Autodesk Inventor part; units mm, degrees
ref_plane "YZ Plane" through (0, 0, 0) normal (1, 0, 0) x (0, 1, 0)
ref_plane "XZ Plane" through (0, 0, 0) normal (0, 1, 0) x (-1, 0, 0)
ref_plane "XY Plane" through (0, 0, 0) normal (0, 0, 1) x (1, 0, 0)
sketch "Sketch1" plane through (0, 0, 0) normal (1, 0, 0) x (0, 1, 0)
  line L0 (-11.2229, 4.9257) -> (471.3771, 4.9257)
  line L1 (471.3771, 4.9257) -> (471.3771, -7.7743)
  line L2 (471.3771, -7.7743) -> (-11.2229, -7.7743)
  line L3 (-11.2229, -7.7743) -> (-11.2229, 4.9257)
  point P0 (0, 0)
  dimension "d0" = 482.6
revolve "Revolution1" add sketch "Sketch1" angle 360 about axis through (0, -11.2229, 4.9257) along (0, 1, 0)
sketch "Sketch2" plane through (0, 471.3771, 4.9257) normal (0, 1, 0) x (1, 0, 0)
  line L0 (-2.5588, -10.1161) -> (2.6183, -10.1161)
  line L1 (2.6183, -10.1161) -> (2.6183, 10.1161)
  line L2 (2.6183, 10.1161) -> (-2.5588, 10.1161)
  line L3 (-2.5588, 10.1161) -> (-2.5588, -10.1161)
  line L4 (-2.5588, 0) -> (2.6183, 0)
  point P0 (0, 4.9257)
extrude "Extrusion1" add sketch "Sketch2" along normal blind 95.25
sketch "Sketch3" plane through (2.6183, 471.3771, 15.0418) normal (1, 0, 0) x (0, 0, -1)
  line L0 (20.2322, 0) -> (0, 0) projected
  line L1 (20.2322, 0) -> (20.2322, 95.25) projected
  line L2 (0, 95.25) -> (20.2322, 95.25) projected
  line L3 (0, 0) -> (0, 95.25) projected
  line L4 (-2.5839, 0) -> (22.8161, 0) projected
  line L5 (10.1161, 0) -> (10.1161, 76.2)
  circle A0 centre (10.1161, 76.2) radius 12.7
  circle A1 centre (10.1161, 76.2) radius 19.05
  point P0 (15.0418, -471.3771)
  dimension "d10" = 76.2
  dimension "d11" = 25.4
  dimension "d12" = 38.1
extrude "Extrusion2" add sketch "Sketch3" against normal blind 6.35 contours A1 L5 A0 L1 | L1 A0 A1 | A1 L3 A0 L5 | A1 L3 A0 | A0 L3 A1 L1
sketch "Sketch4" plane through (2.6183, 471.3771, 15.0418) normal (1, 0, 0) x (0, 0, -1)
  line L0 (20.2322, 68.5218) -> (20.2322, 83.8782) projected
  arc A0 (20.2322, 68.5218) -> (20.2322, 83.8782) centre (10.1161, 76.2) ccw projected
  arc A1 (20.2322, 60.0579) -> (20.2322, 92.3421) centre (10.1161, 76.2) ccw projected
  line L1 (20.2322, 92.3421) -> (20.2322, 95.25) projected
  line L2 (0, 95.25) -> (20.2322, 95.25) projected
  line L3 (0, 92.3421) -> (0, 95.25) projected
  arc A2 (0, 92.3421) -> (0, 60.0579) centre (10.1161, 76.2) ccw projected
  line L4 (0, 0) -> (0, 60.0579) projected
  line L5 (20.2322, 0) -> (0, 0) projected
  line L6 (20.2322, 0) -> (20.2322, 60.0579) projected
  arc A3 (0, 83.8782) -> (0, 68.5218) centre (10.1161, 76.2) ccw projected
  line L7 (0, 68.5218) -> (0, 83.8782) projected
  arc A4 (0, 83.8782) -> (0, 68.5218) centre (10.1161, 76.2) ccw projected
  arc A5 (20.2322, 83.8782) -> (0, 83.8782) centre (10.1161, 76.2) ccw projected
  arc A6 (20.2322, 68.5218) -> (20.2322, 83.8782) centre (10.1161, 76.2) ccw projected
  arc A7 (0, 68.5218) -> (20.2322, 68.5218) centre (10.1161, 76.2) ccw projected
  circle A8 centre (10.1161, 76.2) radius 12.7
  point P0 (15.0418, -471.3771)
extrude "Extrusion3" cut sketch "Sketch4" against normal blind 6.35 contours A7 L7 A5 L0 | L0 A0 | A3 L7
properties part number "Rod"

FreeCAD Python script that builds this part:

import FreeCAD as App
import Part
import Sketcher
Q = App.Units.Quantity

doc = App.newDocument("Part")
body = doc.addObject("PartDesign::Body", "Body")

sketch1 = body.newObject("Sketcher::SketchObject", "Sketch")
sketch1.AttachmentSupport = (doc.getObject("YZ_Plane"), [""])
sketch1.MapMode = "FlatFace"
sketch1.addGeometry([
    Part.LineSegment(App.Vector(471, 5, 0), App.Vector(-11, 5, 0)),
    Part.LineSegment(App.Vector(-11, 5, 0), App.Vector(-11, -8, 0)),
    Part.LineSegment(App.Vector(-11, -8, 0), App.Vector(471, -8, 0)),
    Part.LineSegment(App.Vector(471, -8, 0), App.Vector(471, 5, 0)),
], False)
sketch1.addGeometry(Part.LineSegment(App.Vector(-11, 5, 0), App.Vector(471, 5, 0)), True)
sketch1.addConstraint([
    Sketcher.Constraint("Coincident", 0, 2, 1, 1),
    Sketcher.Constraint("Coincident", 1, 2, 2, 1),
    Sketcher.Constraint("Coincident", 2, 2, 3, 1),
    Sketcher.Constraint("Coincident", 3, 2, 0, 1),
    Sketcher.Constraint("Horizontal", 0),
    Sketcher.Constraint("Vertical", 1),
    Sketcher.Constraint("Horizontal", 2),
    Sketcher.Constraint("Vertical", 3),
    Sketcher.Constraint("Horizontal", 4),
    Sketcher.Constraint("Coincident", 4, 1, 0, 2),
    Sketcher.Constraint("Vertical", 2, 2, 4, 2),
    Sketcher.Constraint("DistanceX", 0, 2, 0, 1, Q("19 in")),
    Sketcher.Constraint("DistanceY", 1, 2, 1, 1, Q("0.5 in")),
    Sketcher.Constraint("DistanceX", 0, 2, -1, 1, 11.223),
    Sketcher.Constraint("DistanceY", -1, 1, 0, 2, 4.9257),
])
revolution = body.newObject("PartDesign::Revolution", "Revolution")
revolution.Profile = sketch1
revolution.ReferenceAxis = (sketch1, ["Axis0"])
revolution.Angle = 360

sketch2 = body.newObject("Sketcher::SketchObject", "Sketch001")
sketch2.AttachmentSupport = (doc.getObject("XZ_Plane"), [""])
sketch2.MapMode = "FlatFace"
sketch2.AttachmentOffset = App.Placement(App.Vector(0, 0, -471.3771), App.Rotation())
sketch2.addGeometry([
    Part.LineSegment(App.Vector(-3, 15, 0), App.Vector(3, 15, 0)),
    Part.LineSegment(App.Vector(3, 15, 0), App.Vector(3, -5, 0)),
    Part.LineSegment(App.Vector(3, -5, 0), App.Vector(-3, -5, 0)),
    Part.LineSegment(App.Vector(-3, -5, 0), App.Vector(-3, 15, 0)),
], False)
sketch2.addConstraint([
    Sketcher.Constraint("Coincident", 0, 2, 1, 1),
    Sketcher.Constraint("Coincident", 1, 2, 2, 1),
    Sketcher.Constraint("Coincident", 2, 2, 3, 1),
    Sketcher.Constraint("Coincident", 3, 2, 0, 1),
    Sketcher.Constraint("Horizontal", 0),
    Sketcher.Constraint("Vertical", 1),
    Sketcher.Constraint("Horizontal", 2),
    Sketcher.Constraint("Vertical", 3),
    Sketcher.Constraint("DistanceX", 0, 1, 0, 2, 5.177),
    Sketcher.Constraint("DistanceY", 1, 2, 1, 1, 20.2322),
    Sketcher.Constraint("DistanceY", -1, 1, 0, 2, Q("0.5922 in")),
    Sketcher.Constraint("DistanceX", -1, 1, 0, 2, 2.6183),
])
pad1 = body.newObject("PartDesign::Pad", "Pad")
pad1.Profile = sketch2
pad1.Length = Q("3.75 in")
pad1.Reversed = True

sketch3 = body.newObject("Sketcher::SketchObject", "Sketch002")
sketch3.AttachmentSupport = (doc.getObject("YZ_Plane"), [""])
sketch3.MapMode = "FlatFace"
sketch3.AttachmentOffset = App.Placement(App.Vector(0, 0, 2.6183), App.Rotation())
sketch3.addGeometry([
    Part.Circle(App.Vector(548, 5, 0), App.Vector(0, 0, 1), 19),
    Part.Circle(App.Vector(548, 5, 0), App.Vector(0, 0, 1), 13),
], False)
sketch3.addConstraint([
    Sketcher.Constraint("Coincident", 1, 3, 0, 3),
    Sketcher.Constraint("Diameter", 1, Q("1 in")),
    Sketcher.Constraint("Diameter", 0, Q("1.5 in")),
    Sketcher.Constraint("DistanceX", -1, 1, 0, 3, 547.577),
    Sketcher.Constraint("DistanceY", -1, 1, 0, 3, 4.9257),
])
pad2 = body.newObject("PartDesign::Pad", "Pad001")
pad2.Profile = sketch3
pad2.Length = Q("0.25 in")
pad2.Reversed = True

sketch4 = body.newObject("Sketcher::SketchObject", "Sketch003")
sketch4.AttachmentSupport = (doc.getObject("YZ_Plane"), [""])
sketch4.MapMode = "FlatFace"
sketch4.AttachmentOffset = App.Placement(App.Vector(0, 0, 2.6183), App.Rotation())
sketch4.addGeometry(Part.Circle(App.Vector(548, 5, 0), App.Vector(0, 0, 1), 13), False)
sketch4.addConstraint([
    Sketcher.Constraint("Diameter", 0, Q("1 in")),
    Sketcher.Constraint("DistanceX", -1, 1, 0, 3, 547.577),
    Sketcher.Constraint("DistanceY", -1, 1, 0, 3, 4.9257),
])
pocket1 = body.newObject("PartDesign::Pocket", "Pocket")
pocket1.Profile = sketch4
pocket1.Length = Q("0.25 in")

doc.recompute()
